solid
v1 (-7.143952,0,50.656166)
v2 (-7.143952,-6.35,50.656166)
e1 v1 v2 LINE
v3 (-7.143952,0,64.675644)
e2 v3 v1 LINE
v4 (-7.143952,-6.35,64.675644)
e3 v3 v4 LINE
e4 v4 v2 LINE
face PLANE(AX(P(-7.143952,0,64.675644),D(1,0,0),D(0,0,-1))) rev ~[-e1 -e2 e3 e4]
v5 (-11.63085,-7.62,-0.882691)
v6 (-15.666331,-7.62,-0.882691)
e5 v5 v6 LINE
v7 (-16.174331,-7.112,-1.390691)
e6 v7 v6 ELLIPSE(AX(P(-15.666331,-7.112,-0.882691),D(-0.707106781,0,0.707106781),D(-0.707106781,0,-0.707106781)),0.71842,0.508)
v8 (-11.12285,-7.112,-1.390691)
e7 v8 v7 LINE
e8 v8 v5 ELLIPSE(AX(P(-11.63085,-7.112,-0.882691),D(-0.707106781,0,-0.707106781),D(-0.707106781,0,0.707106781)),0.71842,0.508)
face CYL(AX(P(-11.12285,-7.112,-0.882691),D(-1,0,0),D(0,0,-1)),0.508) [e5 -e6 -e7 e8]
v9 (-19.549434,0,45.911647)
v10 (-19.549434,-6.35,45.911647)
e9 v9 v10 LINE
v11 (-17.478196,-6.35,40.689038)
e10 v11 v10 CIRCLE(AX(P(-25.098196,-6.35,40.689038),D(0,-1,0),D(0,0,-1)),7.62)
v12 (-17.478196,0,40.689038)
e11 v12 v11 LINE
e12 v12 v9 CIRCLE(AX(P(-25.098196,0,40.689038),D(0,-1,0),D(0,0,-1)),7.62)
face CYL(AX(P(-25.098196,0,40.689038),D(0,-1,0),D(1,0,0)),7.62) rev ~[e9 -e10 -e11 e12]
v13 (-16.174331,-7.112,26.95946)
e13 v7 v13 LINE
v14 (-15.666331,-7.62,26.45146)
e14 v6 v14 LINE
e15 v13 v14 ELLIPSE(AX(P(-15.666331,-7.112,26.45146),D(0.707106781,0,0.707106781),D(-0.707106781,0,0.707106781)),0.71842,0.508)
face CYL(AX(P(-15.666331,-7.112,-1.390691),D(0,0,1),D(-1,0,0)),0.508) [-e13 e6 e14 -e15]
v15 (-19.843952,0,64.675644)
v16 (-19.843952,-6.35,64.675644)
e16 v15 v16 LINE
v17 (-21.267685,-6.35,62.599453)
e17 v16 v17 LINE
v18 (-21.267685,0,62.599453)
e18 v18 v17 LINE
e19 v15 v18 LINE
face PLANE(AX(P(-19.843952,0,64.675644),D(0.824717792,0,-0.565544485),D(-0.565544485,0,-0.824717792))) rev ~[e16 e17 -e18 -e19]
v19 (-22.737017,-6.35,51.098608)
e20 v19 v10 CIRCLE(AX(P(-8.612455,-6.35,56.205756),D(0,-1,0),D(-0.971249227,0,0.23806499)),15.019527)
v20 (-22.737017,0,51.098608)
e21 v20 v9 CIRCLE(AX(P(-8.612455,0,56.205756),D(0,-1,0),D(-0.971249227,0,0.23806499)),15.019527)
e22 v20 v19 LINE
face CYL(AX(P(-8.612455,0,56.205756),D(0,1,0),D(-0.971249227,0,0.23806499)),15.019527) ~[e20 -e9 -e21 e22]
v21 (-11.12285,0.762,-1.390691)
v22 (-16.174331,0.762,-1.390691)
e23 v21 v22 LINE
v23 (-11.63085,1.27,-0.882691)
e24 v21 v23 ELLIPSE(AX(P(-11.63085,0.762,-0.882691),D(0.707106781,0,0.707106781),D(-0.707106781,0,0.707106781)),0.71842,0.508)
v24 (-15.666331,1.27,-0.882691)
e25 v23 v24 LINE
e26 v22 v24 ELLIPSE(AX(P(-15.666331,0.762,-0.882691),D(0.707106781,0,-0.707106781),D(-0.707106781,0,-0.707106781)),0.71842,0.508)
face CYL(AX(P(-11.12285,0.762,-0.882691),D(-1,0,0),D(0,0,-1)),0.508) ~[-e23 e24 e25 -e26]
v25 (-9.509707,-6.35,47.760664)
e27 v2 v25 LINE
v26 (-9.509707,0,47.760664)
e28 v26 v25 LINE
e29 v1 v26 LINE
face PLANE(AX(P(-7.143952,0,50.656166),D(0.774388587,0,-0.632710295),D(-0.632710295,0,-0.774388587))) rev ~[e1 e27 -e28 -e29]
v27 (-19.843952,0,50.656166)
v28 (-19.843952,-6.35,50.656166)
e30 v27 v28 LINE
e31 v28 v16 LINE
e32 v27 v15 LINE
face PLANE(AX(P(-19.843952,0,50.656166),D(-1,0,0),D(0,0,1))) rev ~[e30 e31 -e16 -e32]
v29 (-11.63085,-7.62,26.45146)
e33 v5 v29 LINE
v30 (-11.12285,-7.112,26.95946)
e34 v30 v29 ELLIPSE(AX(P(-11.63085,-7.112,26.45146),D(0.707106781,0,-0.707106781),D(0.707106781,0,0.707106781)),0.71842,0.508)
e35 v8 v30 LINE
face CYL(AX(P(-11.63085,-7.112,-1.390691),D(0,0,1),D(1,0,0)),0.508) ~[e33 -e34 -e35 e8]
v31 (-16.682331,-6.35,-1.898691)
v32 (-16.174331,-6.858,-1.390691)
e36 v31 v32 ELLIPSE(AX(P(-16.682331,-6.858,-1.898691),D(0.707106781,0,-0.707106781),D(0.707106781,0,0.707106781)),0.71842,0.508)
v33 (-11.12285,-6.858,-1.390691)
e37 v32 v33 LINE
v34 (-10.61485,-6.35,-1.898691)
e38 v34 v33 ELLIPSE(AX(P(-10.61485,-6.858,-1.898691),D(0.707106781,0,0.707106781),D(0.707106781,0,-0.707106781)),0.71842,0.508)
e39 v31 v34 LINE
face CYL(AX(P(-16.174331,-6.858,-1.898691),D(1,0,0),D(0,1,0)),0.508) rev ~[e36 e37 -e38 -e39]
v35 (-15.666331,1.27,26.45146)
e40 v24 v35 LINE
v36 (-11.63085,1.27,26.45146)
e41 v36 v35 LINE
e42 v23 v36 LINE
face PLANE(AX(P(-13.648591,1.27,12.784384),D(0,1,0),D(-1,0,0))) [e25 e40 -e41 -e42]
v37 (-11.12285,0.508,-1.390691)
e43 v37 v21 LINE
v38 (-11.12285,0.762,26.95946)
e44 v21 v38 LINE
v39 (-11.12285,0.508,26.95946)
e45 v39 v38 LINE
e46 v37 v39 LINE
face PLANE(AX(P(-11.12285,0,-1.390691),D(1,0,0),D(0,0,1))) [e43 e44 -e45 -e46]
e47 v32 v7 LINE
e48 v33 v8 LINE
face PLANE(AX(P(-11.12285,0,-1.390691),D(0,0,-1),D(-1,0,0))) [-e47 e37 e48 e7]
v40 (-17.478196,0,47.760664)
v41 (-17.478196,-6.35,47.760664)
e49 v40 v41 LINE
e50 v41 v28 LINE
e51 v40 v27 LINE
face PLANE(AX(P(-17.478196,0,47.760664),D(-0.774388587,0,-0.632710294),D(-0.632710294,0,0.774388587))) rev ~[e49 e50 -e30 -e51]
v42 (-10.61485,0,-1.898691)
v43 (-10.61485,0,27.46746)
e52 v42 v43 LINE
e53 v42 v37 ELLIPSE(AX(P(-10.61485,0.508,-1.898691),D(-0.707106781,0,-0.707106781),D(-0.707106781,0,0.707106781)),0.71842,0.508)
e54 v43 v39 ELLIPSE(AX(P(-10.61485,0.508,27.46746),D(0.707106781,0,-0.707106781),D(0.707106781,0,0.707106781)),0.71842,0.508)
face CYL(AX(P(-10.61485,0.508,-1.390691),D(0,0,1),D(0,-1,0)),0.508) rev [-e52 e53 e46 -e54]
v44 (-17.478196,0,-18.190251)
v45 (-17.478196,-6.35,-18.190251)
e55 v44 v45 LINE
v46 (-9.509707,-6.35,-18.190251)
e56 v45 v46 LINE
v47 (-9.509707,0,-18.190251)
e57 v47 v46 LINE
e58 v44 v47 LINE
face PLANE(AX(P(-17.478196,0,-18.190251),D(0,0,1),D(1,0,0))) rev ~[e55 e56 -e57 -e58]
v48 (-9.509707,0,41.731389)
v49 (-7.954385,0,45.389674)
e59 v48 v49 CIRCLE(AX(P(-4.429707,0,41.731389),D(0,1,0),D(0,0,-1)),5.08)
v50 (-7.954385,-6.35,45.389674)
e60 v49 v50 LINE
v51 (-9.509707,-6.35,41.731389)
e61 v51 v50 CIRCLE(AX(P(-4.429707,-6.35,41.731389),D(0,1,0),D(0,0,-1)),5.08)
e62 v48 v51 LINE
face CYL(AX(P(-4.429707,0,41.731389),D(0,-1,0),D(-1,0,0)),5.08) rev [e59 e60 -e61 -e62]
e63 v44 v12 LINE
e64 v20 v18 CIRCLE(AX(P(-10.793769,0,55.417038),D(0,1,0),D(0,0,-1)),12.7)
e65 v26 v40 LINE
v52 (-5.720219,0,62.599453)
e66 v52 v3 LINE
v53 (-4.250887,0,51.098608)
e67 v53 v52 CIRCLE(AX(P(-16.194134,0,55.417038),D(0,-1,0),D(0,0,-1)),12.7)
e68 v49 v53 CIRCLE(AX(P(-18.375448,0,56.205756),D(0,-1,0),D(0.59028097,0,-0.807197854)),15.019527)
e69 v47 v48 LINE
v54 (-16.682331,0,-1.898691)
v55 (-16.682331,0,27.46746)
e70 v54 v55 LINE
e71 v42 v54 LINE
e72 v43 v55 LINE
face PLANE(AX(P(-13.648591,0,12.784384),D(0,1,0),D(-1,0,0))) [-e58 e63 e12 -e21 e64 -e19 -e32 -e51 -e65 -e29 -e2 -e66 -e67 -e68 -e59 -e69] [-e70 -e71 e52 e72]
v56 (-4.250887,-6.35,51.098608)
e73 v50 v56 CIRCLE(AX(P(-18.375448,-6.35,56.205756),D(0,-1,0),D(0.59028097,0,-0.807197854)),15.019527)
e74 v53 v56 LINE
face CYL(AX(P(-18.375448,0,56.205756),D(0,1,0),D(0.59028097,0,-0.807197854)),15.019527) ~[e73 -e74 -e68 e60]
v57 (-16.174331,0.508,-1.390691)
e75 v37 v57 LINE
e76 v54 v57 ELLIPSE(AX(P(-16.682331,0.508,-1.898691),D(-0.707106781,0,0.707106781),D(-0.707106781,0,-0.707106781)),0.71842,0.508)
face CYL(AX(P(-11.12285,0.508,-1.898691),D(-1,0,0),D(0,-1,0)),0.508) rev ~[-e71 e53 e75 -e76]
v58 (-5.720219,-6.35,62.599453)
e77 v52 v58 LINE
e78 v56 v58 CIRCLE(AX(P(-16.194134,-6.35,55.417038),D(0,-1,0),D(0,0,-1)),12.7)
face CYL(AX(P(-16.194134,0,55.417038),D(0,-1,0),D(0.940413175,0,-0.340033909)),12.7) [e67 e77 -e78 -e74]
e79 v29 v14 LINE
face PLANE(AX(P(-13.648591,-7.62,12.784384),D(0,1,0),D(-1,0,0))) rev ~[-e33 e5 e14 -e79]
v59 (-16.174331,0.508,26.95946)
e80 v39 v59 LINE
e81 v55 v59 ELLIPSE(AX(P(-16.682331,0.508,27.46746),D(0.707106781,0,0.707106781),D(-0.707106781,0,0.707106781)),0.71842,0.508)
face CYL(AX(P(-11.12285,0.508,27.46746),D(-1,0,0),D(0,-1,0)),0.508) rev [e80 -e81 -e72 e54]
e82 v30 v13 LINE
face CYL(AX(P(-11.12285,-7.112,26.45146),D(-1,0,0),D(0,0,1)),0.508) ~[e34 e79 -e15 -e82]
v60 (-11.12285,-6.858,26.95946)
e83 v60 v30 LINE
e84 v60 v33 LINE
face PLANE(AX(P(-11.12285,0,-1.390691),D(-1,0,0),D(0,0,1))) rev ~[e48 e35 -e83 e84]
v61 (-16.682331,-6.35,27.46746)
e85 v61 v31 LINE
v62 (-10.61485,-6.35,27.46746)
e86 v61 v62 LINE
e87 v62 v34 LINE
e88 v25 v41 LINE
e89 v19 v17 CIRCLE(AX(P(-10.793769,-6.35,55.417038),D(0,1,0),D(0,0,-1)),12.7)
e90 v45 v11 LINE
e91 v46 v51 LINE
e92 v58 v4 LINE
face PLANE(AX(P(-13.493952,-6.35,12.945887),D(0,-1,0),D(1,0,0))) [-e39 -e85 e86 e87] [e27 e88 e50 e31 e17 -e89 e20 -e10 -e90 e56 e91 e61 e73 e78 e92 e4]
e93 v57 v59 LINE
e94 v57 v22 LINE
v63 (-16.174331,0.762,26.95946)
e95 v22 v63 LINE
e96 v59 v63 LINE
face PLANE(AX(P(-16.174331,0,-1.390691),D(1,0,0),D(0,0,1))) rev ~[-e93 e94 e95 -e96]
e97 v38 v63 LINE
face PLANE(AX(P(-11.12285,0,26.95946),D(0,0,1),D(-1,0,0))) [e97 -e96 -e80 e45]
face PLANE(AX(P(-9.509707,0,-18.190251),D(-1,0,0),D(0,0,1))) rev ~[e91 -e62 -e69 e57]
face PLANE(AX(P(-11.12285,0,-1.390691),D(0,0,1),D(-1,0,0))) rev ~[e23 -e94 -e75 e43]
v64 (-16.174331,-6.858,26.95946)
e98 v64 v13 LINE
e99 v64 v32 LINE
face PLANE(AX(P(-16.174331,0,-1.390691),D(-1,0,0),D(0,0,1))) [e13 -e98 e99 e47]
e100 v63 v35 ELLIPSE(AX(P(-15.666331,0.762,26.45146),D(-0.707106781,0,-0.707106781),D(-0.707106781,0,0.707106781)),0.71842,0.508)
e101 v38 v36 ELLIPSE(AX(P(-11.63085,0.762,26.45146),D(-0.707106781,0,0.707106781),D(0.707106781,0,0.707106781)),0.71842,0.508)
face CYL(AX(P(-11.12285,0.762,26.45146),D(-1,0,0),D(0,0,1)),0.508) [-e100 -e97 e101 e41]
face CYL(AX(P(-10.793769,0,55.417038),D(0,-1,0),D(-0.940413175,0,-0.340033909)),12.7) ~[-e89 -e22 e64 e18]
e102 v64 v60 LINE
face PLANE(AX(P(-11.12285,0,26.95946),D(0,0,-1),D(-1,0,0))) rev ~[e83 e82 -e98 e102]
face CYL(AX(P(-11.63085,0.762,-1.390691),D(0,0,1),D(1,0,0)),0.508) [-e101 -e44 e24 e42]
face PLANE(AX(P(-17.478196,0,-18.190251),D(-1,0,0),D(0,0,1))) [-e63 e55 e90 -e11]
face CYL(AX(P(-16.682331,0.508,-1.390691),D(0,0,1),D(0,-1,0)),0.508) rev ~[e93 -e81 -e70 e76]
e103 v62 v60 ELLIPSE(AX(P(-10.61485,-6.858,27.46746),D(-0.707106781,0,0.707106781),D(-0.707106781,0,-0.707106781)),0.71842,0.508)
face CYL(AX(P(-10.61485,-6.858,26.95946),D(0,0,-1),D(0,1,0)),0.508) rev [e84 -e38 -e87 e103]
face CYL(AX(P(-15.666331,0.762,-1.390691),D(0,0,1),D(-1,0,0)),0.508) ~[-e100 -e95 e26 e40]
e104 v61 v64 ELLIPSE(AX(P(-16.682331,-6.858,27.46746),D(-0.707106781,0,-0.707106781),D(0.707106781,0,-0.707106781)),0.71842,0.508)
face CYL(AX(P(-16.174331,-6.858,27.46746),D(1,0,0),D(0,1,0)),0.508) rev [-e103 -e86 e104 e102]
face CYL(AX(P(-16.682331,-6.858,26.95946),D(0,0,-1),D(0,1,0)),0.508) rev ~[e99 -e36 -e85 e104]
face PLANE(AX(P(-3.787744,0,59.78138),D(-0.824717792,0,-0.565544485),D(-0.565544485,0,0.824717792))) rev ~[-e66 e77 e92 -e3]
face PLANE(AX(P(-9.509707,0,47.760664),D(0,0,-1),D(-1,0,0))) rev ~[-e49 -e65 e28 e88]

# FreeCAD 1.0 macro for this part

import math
import FreeCAD as App
import Part
import Sketcher

V = App.Vector
Q = App.Units.Quantity


def edges_at(feature, points):
    """Names of the edges that pass closest to the given points."""
    edges = feature.Shape.Edges
    near = lambda p: min(range(len(edges)), key=lambda i: edges[i].distToShape(Part.Vertex(*p))[0])
    return sorted({f"Edge{near(p) + 1}" for p in points})

doc = App.newDocument("Part")
body = doc.addObject("PartDesign::Body", "Body")

# Sketch on XZ plane
sketch1 = doc.addObject("Sketcher::SketchObject", "Sketch")
body.addObject(sketch1)
sketch1.AttachmentSupport = (doc.XZ_Plane, [""])
sketch1.MapMode = "FlatFace"
sketch1.addGeometry([
    Part.LineSegment(V(-17.5, 44.1, 0), V(-17.5, -18.2, 0)),  # 0
    Part.LineSegment(V(-17.5, -18.2, 0), V(-9.5, -18.2, 0)),  # 1
    Part.LineSegment(V(-9.5, -18.2, 0), V(-9.5, 44.1, 0)),  # 2
    Part.ArcOfCircle(Part.Circle(V(-18.4, 56.2, 0), V(0, 0, 1), 15), math.radians(-54), math.radians(14)),  # 3
    Part.LineSegment(V(-3.8, 59.8, 0), V(-7.1, 64.7, 0)),  # 4
    Part.LineSegment(V(-7.1, 64.7, 0), V(-7.1, 50.7, 0)),  # 5
    Part.LineSegment(V(-7.1, 50.7, 0), V(-9.5, 47.8, 0)),  # 6
    Part.LineSegment(V(-9.5, 47.8, 0), V(-17.5, 47.8, 0)),  # 7
    Part.LineSegment(V(-17.5, 47.8, 0), V(-19.8, 50.7, 0)),  # 8
    Part.LineSegment(V(-19.8, 50.7, 0), V(-19.8, 64.7, 0)),  # 9
    Part.LineSegment(V(-19.8, 64.7, 0), V(-23.2, 59.8, 0)),  # 10
    Part.ArcOfCircle(Part.Circle(V(-8.6, 56.2, 0), V(0, 0, 1), 15), math.radians(166), math.radians(234)),  # 11
], False)
sketch1.addConstraint([
    Sketcher.Constraint("Coincident", 0, 2, 1, 1),
    Sketcher.Constraint("Coincident", 1, 2, 2, 1),
    Sketcher.Constraint("Coincident", 2, 2, 3, 1),
    Sketcher.Constraint("Coincident", 3, 2, 4, 1),
    Sketcher.Constraint("Coincident", 4, 2, 5, 1),
    Sketcher.Constraint("Coincident", 5, 2, 6, 1),
    Sketcher.Constraint("Coincident", 6, 2, 7, 1),
    Sketcher.Constraint("Coincident", 7, 2, 8, 1),
    Sketcher.Constraint("Coincident", 8, 2, 9, 1),
    Sketcher.Constraint("Coincident", 9, 2, 10, 1),
    Sketcher.Constraint("Coincident", 10, 2, 11, 1),
    Sketcher.Constraint("Coincident", 11, 2, 0, 1),
    Sketcher.Constraint("Vertical", 0),
    Sketcher.Constraint("Horizontal", 1),
    Sketcher.Constraint("Vertical", 2),
    Sketcher.Constraint("Vertical", 5),
    Sketcher.Constraint("Horizontal", 7),
    Sketcher.Constraint("Vertical", 9),
    Sketcher.Constraint("Equal", 3, 11),
    Sketcher.Constraint("Horizontal", 3, 3, 11, 3),
    Sketcher.Constraint("Horizontal", 5, 2, 8, 2),
    Sketcher.Constraint("Horizontal", 4, 2, 9, 2),
    Sketcher.Constraint("Horizontal", 3, 2, 10, 2),
    Sketcher.Constraint("Horizontal", 2, 2, 11, 2),
    Sketcher.Constraint("Vertical", 2, 2, 6, 2),
    Sketcher.Constraint("Vertical", 0, 2, 7, 2),
    Sketcher.Constraint("Equal", 6, 8),
    Sketcher.Constraint("DistanceX", 9, 2, 4, 2, Q("0.5 in")),
    Sketcher.Constraint("Radius", 3, 15.019527),
    Sketcher.Constraint("DistanceX", 1, 1, 1, 2, 7.968489),
    Sketcher.Constraint("DistanceY", 5, 2, 5, 1, 14.019478),
    Sketcher.Constraint("Distance", 4, 5.934471),
    Sketcher.Constraint("Distance", 6, 3.739082),
    Sketcher.Constraint("DistanceY", 0, 2, 0, 1, 62.272278),
    Sketcher.Constraint("DistanceX", 3, 3, -1, 1, 18.375448),
    Sketcher.Constraint("DistanceY", 0, 2, -1, 1, 18.190251),
    Sketcher.Constraint("DistanceY", -1, 1, 3, 2, 59.78138),
    Sketcher.Constraint("DistanceX", 4, 2, -1, 1, 7.143952),
])
pad1 = doc.addObject("PartDesign::Pad", "Pad")
body.addObject(pad1)
pad1.Profile = sketch1
pad1.Length = Q("0.25 in")
doc.recompute()

fillet = doc.addObject("PartDesign::Fillet", "Fillet")
body.addObject(fillet)
fillet.Base = (pad1, edges_at(pad1, [(-17.478, -3.175, 44.082)]))
fillet.Radius = Q("0.3 in")
doc.recompute()

fillet2 = doc.addObject("PartDesign::Fillet", "Fillet001")
body.addObject(fillet2)
fillet2.Base = (fillet, edges_at(fillet, [(-3.788, -3.175, 59.781), (-23.2, -3.175, 59.781)]))
fillet2.Radius = Q("0.5 in")

# Sketch on XZ plane
sketch2 = doc.addObject("Sketcher::SketchObject", "Sketch001")
body.addObject(sketch2)
sketch2.AttachmentSupport = (doc.XZ_Plane, [""])
sketch2.MapMode = "FlatFace"
sketch2.addGeometry([
    Part.LineSegment(V(-11, 27, 0), V(-11, -1, 0)),
    Part.LineSegment(V(-11, -1, 0), V(-16, -1, 0)),
    Part.LineSegment(V(-16, -1, 0), V(-16, 27, 0)),
    Part.LineSegment(V(-16, 27, 0), V(-11, 27, 0)),
], False)
sketch2.addConstraint([
    Sketcher.Constraint("Coincident", 0, 2, 1, 1),
    Sketcher.Constraint("Coincident", 1, 2, 2, 1),
    Sketcher.Constraint("Coincident", 2, 2, 3, 1),
    Sketcher.Constraint("Coincident", 3, 2, 0, 1),
    Sketcher.Constraint("Vertical", 0),
    Sketcher.Constraint("Horizontal", 1),
    Sketcher.Constraint("Vertical", 2),
    Sketcher.Constraint("Horizontal", 3),
    Sketcher.Constraint("DistanceX", 1, 2, 1, 1, 5.051482),
    Sketcher.Constraint("DistanceY", 0, 2, 0, 1, 28.350152),
    Sketcher.Constraint("DistanceX", 0, 2, -1, 1, 11.12285),
    Sketcher.Constraint("DistanceY", 0, 2, -1, 1, 1.390691),
])
pad2 = doc.addObject("PartDesign::Pad", "Pad001")
body.addObject(pad2)
pad2.Profile = sketch2
pad2.Type = "TwoLengths"
pad2.Length = Q("0.3 in")
pad2.Length2 = Q("0.05 in")
doc.recompute()

fillet3 = doc.addObject("PartDesign::Fillet", "Fillet002")
body.addObject(fillet3)
fillet3.Base = (pad2, edges_at(pad2, [
    (-11.123, 0, 12.784),
    (-13.649, 0, -1.391),
    (-13.649, 0, 26.959),
    (-16.174, 0, 12.784),
]))
fillet3.Radius = Q("0.02 in")
doc.recompute()

fillet4 = doc.addObject("PartDesign::Fillet", "Fillet003")
body.addObject(fillet4)
fillet4.Base = (fillet3, edges_at(fillet3, [
    (-11.123, 1.27, 12.784),
    (-13.649, 1.27, -1.391),
    (-16.174, 1.27, 12.784),
    (-13.649, 1.27, 26.959),
]))
fillet4.Radius = Q("0.02 in")
doc.recompute()

fillet5 = doc.addObject("PartDesign::Fillet", "Fillet004")
body.addObject(fillet5)
fillet5.Base = (fillet4, edges_at(fillet4, [
    (-13.649, -6.35, -1.391),
    (-11.123, -6.35, 12.784),
    (-13.649, -6.35, 26.959),
    (-16.174, -6.35, 12.784),
    (-11.123, -7.62, 12.784),
    (-13.649, -7.62, -1.391),
    (-16.174, -7.62, 12.784),
    (-13.649, -7.62, 26.959),
]))
fillet5.Radius = Q("0.02 in")
doc.recompute()

fillet6 = doc.addObject("PartDesign::Fillet", "Fillet005")
body.addObject(fillet6)
fillet6.Base = (fillet5, edges_at(fillet5, [(-9.51, -3.175, 44.082)]))
fillet6.Radius = Q("0.2 in")

doc.recompute()
